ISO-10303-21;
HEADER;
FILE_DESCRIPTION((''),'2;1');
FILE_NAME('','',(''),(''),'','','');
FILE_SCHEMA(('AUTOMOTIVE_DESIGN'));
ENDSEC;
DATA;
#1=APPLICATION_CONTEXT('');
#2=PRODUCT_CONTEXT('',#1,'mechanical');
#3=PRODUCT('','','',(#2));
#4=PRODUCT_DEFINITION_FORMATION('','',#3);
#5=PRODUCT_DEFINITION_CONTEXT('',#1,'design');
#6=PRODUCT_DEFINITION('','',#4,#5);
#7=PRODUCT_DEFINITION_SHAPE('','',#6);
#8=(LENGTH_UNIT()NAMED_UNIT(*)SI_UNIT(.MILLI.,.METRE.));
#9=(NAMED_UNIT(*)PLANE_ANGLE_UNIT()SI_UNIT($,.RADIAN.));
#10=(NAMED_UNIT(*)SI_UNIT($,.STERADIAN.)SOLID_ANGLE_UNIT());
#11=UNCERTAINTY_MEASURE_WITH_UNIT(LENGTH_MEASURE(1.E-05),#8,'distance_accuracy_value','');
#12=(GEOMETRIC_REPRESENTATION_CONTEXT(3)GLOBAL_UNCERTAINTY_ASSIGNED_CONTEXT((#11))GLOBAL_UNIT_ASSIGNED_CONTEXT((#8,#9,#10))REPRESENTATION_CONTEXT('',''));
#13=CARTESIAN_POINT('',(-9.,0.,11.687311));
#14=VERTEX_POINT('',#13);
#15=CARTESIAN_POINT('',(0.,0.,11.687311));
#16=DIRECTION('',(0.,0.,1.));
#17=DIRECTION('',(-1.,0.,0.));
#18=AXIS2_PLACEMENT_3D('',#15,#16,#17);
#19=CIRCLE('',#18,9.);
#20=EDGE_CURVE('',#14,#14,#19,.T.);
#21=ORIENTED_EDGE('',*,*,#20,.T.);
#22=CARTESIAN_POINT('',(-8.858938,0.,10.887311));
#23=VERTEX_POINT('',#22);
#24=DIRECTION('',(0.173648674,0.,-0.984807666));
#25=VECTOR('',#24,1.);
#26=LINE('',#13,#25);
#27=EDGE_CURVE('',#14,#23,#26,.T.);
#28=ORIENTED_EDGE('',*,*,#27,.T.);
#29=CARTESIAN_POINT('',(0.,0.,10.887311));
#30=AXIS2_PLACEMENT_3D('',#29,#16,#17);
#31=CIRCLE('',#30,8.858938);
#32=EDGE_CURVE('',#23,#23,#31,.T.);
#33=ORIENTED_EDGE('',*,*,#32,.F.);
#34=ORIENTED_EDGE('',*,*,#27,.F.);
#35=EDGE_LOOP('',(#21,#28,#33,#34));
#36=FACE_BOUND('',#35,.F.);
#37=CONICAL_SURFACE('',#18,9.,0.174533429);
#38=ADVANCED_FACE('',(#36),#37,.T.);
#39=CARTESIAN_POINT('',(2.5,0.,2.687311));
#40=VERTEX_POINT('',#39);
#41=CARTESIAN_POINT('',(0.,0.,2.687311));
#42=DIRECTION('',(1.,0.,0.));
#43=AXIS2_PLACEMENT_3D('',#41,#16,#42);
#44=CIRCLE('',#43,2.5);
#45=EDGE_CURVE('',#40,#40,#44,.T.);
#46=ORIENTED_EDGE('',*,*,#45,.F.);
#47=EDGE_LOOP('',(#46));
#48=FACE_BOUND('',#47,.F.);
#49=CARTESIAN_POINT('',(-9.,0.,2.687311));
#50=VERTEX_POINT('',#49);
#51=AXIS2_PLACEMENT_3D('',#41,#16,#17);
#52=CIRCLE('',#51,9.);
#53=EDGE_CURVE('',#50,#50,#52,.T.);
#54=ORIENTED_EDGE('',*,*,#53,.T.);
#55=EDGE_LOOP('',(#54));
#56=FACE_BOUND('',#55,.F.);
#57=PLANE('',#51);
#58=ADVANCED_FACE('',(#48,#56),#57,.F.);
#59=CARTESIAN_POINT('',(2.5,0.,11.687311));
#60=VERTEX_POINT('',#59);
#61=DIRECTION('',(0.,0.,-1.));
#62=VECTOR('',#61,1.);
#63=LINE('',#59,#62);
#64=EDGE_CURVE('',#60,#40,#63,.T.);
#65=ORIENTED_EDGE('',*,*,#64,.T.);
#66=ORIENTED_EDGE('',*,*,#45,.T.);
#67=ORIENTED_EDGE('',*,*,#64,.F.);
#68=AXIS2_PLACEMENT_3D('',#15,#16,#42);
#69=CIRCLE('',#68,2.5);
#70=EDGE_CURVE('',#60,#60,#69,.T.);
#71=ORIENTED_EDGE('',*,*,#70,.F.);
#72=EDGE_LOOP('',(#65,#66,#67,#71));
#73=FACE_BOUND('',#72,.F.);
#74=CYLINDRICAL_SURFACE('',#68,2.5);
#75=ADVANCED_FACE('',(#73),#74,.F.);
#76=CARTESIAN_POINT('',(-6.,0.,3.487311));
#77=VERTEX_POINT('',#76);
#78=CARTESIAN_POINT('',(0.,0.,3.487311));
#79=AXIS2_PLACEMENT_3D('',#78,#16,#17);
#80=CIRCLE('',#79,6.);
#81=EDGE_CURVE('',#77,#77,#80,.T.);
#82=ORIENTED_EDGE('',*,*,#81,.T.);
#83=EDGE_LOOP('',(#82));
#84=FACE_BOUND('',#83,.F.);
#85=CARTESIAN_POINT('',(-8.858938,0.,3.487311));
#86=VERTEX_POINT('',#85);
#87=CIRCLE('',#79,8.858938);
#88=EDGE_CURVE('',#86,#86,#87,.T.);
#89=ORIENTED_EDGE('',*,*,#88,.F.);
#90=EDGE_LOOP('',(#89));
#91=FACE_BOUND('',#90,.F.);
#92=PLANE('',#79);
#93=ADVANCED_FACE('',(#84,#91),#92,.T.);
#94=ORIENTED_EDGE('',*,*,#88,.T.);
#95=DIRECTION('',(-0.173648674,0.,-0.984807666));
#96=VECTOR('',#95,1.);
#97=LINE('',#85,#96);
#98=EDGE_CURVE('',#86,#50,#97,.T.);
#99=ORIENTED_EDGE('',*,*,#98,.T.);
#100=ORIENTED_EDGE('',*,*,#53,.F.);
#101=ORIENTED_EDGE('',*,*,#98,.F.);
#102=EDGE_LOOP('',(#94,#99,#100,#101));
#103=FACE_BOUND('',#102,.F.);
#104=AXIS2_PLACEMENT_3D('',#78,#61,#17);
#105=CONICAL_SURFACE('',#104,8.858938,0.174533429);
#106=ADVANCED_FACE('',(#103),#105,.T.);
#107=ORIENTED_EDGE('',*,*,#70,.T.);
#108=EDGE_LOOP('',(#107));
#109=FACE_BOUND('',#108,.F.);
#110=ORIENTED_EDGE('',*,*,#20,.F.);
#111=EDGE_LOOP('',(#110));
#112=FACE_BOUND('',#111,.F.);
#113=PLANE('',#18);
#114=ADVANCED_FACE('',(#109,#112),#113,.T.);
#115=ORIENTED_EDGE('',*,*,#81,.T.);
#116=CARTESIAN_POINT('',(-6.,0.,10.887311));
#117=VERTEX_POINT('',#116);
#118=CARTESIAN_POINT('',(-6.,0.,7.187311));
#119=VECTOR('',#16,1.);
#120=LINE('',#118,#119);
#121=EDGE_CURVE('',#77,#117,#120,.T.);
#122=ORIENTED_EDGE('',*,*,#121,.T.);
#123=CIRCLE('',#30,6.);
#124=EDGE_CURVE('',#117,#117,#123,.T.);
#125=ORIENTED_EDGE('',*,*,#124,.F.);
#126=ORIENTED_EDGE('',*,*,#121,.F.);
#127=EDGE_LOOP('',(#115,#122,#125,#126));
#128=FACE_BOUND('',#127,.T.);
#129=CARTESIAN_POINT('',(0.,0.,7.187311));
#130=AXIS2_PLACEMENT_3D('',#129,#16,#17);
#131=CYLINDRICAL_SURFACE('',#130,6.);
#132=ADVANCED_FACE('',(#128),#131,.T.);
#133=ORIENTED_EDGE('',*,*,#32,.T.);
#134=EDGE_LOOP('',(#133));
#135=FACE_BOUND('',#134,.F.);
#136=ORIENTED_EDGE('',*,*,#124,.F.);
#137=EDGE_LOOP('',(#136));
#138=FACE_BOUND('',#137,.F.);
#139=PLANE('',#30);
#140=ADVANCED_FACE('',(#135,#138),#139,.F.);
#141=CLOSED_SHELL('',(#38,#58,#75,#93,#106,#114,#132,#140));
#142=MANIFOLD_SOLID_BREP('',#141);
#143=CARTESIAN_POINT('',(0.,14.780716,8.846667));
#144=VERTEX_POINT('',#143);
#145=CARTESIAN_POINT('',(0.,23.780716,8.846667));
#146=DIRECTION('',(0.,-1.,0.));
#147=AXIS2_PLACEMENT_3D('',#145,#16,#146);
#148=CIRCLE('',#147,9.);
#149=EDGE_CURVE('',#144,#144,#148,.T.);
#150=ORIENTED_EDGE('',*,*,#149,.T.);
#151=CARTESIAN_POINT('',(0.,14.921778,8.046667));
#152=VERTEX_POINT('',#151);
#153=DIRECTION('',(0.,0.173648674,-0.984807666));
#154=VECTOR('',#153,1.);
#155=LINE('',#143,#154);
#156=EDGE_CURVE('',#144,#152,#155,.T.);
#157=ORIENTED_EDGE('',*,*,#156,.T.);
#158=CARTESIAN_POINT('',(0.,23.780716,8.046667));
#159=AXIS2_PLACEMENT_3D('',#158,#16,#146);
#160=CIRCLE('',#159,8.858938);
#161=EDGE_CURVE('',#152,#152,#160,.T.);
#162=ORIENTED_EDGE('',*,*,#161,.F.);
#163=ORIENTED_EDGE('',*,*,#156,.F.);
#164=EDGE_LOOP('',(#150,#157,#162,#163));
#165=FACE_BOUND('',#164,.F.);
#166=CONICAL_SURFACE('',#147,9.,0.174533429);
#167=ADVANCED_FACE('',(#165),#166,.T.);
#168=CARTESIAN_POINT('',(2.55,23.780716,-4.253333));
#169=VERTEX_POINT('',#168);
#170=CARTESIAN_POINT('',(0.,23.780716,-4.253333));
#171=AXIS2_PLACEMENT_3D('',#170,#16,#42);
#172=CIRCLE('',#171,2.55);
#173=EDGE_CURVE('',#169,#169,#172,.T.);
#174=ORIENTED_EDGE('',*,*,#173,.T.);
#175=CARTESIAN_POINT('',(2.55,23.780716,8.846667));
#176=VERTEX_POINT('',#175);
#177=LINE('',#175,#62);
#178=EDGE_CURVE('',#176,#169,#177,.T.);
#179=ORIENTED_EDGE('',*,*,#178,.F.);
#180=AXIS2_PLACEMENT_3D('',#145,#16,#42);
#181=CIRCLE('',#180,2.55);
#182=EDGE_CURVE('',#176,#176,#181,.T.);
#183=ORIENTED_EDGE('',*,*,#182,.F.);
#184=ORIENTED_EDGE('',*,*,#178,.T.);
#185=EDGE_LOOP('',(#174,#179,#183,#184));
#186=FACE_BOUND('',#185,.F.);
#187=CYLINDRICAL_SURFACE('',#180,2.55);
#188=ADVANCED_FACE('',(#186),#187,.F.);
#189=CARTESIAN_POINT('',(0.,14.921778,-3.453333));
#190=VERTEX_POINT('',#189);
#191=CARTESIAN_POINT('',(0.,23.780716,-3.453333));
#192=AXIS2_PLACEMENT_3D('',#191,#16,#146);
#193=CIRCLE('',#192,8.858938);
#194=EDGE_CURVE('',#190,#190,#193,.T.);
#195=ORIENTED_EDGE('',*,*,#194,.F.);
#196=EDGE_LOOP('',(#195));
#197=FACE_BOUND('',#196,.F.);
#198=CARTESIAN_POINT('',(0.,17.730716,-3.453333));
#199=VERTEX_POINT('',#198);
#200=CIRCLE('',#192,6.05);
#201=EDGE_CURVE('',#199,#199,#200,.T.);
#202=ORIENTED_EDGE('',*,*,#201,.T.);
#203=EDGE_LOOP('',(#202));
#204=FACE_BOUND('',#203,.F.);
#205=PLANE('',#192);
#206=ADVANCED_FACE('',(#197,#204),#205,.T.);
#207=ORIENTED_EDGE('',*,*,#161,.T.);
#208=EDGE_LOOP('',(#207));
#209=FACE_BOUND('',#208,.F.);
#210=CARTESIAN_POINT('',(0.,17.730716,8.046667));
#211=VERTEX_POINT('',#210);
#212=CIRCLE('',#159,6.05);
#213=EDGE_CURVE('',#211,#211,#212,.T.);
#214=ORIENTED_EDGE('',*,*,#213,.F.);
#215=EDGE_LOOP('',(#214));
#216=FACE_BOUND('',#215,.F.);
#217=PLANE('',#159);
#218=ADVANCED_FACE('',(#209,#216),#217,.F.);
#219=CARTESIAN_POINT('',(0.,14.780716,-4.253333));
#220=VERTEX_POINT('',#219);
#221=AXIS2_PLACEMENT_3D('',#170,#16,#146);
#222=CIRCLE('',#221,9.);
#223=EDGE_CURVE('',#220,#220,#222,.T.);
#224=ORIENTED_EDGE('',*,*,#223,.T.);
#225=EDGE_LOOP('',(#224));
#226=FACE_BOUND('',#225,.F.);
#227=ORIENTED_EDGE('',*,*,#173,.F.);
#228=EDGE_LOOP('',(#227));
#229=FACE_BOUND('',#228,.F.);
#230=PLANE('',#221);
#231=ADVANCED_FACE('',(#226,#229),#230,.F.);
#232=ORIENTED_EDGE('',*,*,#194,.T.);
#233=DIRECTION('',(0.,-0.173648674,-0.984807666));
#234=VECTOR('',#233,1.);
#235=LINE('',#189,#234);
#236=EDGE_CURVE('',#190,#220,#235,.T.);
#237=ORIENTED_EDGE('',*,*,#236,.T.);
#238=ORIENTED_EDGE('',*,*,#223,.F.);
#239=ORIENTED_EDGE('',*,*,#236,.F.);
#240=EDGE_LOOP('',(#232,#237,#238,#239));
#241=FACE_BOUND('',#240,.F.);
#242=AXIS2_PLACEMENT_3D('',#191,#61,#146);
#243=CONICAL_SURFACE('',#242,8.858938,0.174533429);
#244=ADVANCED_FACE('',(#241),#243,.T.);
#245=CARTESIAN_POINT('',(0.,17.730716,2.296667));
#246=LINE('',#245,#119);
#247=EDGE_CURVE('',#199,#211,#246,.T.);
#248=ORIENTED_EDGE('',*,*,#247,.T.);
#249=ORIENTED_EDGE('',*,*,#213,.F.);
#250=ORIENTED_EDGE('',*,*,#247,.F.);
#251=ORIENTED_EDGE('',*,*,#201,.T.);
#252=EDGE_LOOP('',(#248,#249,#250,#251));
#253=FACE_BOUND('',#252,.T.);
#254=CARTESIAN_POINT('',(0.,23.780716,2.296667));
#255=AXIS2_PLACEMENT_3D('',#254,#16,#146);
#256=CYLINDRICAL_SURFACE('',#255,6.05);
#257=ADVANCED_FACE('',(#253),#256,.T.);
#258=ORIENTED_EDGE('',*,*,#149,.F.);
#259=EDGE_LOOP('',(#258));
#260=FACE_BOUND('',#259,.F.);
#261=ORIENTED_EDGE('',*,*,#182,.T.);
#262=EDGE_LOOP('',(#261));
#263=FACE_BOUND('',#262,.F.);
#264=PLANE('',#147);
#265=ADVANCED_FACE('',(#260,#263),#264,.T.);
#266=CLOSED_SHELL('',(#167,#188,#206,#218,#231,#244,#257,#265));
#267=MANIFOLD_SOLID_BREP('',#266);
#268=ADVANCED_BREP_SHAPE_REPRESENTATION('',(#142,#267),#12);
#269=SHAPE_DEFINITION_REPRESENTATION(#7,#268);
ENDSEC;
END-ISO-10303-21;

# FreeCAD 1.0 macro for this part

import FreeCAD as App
import Part
import Sketcher
Q = App.Units.Quantity

doc = App.newDocument("Part")
body = doc.addObject("PartDesign::Body", "Body")

# Sketch on XZ plane
sketch1 = doc.addObject("Sketcher::SketchObject", "Sketch")
body.addObject(sketch1)
sketch1.AttachmentSupport = (doc.XZ_Plane, [""])
sketch1.MapMode = "FlatFace"
sketch1.addGeometry(Part.LineSegment(App.Vector(0, 11.687311, 0), App.Vector(-9, 11.687311, 0)), False)
sketch1.addGeometry(Part.LineSegment(App.Vector(-9, 11.687311, 0), App.Vector(-8.858938, 10.887311, 0)), False)
sketch1.addGeometry(Part.LineSegment(App.Vector(-8.858938, 10.887311, 0), App.Vector(-6, 10.887311, 0)), False)
sketch1.addGeometry(Part.LineSegment(App.Vector(-6, 10.887311, 0), App.Vector(-6, 3.487311, 0)), False)
sketch1.addGeometry(Part.LineSegment(App.Vector(-6, 3.487311, 0), App.Vector(-8.858938, 3.487311, 0)), False)
sketch1.addGeometry(Part.LineSegment(App.Vector(-8.858938, 3.487311, 0), App.Vector(-9, 2.687311, 0)), False)
sketch1.addGeometry(Part.LineSegment(App.Vector(-9, 2.687311, 0), App.Vector(0, 2.687311, 0)), False)
sketch1.addGeometry(Part.LineSegment(App.Vector(0, 2.687311, 0), App.Vector(0, 11.687311, 0)), False)
sketch1.addConstraint(Sketcher.Constraint("Coincident", 0, 2, 1, 1))
sketch1.addConstraint(Sketcher.Constraint("Coincident", 1, 2, 2, 1))
sketch1.addConstraint(Sketcher.Constraint("Coincident", 2, 2, 3, 1))
sketch1.addConstraint(Sketcher.Constraint("Coincident", 3, 2, 4, 1))
sketch1.addConstraint(Sketcher.Constraint("Coincident", 4, 2, 5, 1))
sketch1.addConstraint(Sketcher.Constraint("Coincident", 5, 2, 6, 1))
sketch1.addConstraint(Sketcher.Constraint("Coincident", 6, 2, 7, 1))
sketch1.addConstraint(Sketcher.Constraint("Coincident", 7, 2, 0, 1))
sketch1.addConstraint(Sketcher.Constraint("Horizontal", 0))
sketch1.addConstraint(Sketcher.Constraint("Horizontal", 2))
sketch1.addConstraint(Sketcher.Constraint("Vertical", 3))
sketch1.addConstraint(Sketcher.Constraint("Horizontal", 4))
sketch1.addConstraint(Sketcher.Constraint("Horizontal", 6))
sketch1.addConstraint(Sketcher.Constraint("Vertical", 7))
sketch1.addConstraint(Sketcher.Constraint("PointOnObject", 6, 2, -2))
sketch1.addConstraint(Sketcher.Constraint("Vertical", 1, 2, 4, 2))
sketch1.addConstraint(Sketcher.Constraint("Vertical", 0, 2, 5, 2))
sketch1.addConstraint(Sketcher.Constraint("Equal", 6, 7))
sketch1.addConstraint(Sketcher.Constraint("Equal", 1, 5))
sketch1.addConstraint(Sketcher.Constraint("DistanceX", 0, 2, 0, 1, Q("9 mm")))
sketch1.addConstraint(Sketcher.Constraint("DistanceY", 3, 2, 3, 1, Q("7.4 mm")))
sketch1.addConstraint(Sketcher.Constraint("DistanceX", 2, 2, -1, 1, Q("6 mm")))
sketch1.addConstraint(Sketcher.Constraint("DistanceX", 2, 1, 2, 2, Q("2.858938 mm")))
sketch1.addConstraint(Sketcher.Constraint("DistanceY", -1, 1, 0, 2, Q("11.687311 mm")))
revolution = doc.addObject("PartDesign::Revolution", "Revolution")
body.addObject(revolution)
revolution.Profile = sketch1
revolution.ReferenceAxis = (sketch1, ["V_Axis"])
revolution.Angle = 360

# Sketch on XY plane
sketch2 = doc.addObject("Sketcher::SketchObject", "Sketch001")
body.addObject(sketch2)
sketch2.AttachmentSupport = (doc.XY_Plane, [""])
sketch2.MapMode = "FlatFace"
sketch2.AttachmentOffset = App.Placement(App.Vector(0, 0, 11.687311), App.Rotation())
sketch2.addGeometry(Part.Circle(App.Vector(0, 0, 0), App.Vector(0, 0, 1), 2.5), False)
sketch2.addConstraint(Sketcher.Constraint("Coincident", 0, 3, -1, 1))
sketch2.addConstraint(Sketcher.Constraint("Diameter", 0, Q("5 mm")))
pocket1 = doc.addObject("PartDesign::Pocket", "Pocket")
body.addObject(pocket1)
pocket1.Profile = sketch2
pocket1.Type = "ThroughAll"
body2 = doc.addObject("PartDesign::Body", "Body001")

# Sketch on YZ plane
sketch3 = doc.addObject("Sketcher::SketchObject", "Sketch002")
body2.addObject(sketch3)
sketch3.AttachmentSupport = (doc.getObject("YZ_Plane001"), [""])
sketch3.MapMode = "FlatFace"
sketch3.addGeometry(Part.LineSegment(App.Vector(23.780716, -4.253333, 0), App.Vector(23.780716, 8.846667, 0)), False)
sketch3.addGeometry(Part.LineSegment(App.Vector(23.780716, 8.846667, 0), App.Vector(14.780716, 8.846667, 0)), False)
sketch3.addGeometry(Part.LineSegment(App.Vector(14.780716, 8.846667, 0), App.Vector(14.921778, 8.046667, 0)), False)
sketch3.addGeometry(Part.LineSegment(App.Vector(14.921778, 8.046667, 0), App.Vector(17.730716, 8.046667, 0)), False)
sketch3.addGeometry(Part.LineSegment(App.Vector(17.730716, 8.046667, 0), App.Vector(17.730716, -3.453333, 0)), False)
sketch3.addGeometry(Part.LineSegment(App.Vector(17.730716, -3.453333, 0), App.Vector(14.921778, -3.453333, 0)), False)
sketch3.addGeometry(Part.LineSegment(App.Vector(14.921778, -3.453333, 0), App.Vector(14.780716, -4.253333, 0)), False)
sketch3.addGeometry(Part.LineSegment(App.Vector(14.780716, -4.253333, 0), App.Vector(23.780716, -4.253333, 0)), False)
sketch3.addGeometry(Part.LineSegment(App.Vector(23.780716, -4.253333, 0), App.Vector(23.780716, 8.846667, 0)), True)  # axis
sketch3.addConstraint(Sketcher.Constraint("Coincident", 0, 2, 1, 1))
sketch3.addConstraint(Sketcher.Constraint("Coincident", 1, 2, 2, 1))
sketch3.addConstraint(Sketcher.Constraint("Coincident", 2, 2, 3, 1))
sketch3.addConstraint(Sketcher.Constraint("Coincident", 3, 2, 4, 1))
sketch3.addConstraint(Sketcher.Constraint("Coincident", 4, 2, 5, 1))
sketch3.addConstraint(Sketcher.Constraint("Coincident", 5, 2, 6, 1))
sketch3.addConstraint(Sketcher.Constraint("Coincident", 6, 2, 7, 1))
sketch3.addConstraint(Sketcher.Constraint("Coincident", 7, 2, 0, 1))
sketch3.addConstraint(Sketcher.Constraint("Vertical", 0))
sketch3.addConstraint(Sketcher.Constraint("Horizontal", 1))
sketch3.addConstraint(Sketcher.Constraint("Horizontal", 3))
sketch3.addConstraint(Sketcher.Constraint("Vertical", 4))
sketch3.addConstraint(Sketcher.Constraint("Horizontal", 5))
sketch3.addConstraint(Sketcher.Constraint("Horizontal", 7))
sketch3.addConstraint(Sketcher.Constraint("Vertical", 8))
sketch3.addConstraint(Sketcher.Constraint("Coincident", 8, 1, 7, 2))
sketch3.addConstraint(Sketcher.Constraint("Horizontal", 1, 2, 8, 2))
sketch3.addConstraint(Sketcher.Constraint("Vertical", 2, 2, 5, 2))
sketch3.addConstraint(Sketcher.Constraint("Vertical", 1, 2, 6, 2))
sketch3.addConstraint(Sketcher.Constraint("Equal", 2, 6))
sketch3.addConstraint(Sketcher.Constraint("DistanceX", 1, 2, 1, 1, Q("9 mm")))
sketch3.addConstraint(Sketcher.Constraint("DistanceY", 0, 1, 0, 2, Q("13.1 mm")))
sketch3.addConstraint(Sketcher.Constraint("DistanceY", 4, 2, 4, 1, Q("11.5 mm")))
sketch3.addConstraint(Sketcher.Constraint("DistanceX", 1, 2, 3, 2, Q("2.95 mm")))
sketch3.addConstraint(Sketcher.Constraint("DistanceX", 3, 1, 3, 2, Q("2.808938 mm")))
sketch3.addConstraint(Sketcher.Constraint("DistanceX", -1, 1, 0, 2, Q("23.780716 mm")))
sketch3.addConstraint(Sketcher.Constraint("DistanceY", -1, 1, 0, 2, Q("8.846667 mm")))
revolution2 = doc.addObject("PartDesign::Revolution", "Revolution001")
body2.addObject(revolution2)
revolution2.Profile = sketch3
revolution2.ReferenceAxis = (sketch3, ["Axis0"])
revolution2.Angle = 360

# Sketch on XY plane
sketch4 = doc.addObject("Sketcher::SketchObject", "Sketch003")
body2.addObject(sketch4)
sketch4.AttachmentSupport = (doc.getObject("XY_Plane001"), [""])
sketch4.MapMode = "FlatFace"
sketch4.AttachmentOffset = App.Placement(App.Vector(0, 0, 8.846667), App.Rotation())
sketch4.addGeometry(Part.Circle(App.Vector(0, 23.780716, 0), App.Vector(0, 0, 1), 2.55), False)
sketch4.addConstraint(Sketcher.Constraint("PointOnObject", 0, 3, -2))
sketch4.addConstraint(Sketcher.Constraint("Diameter", 0, Q("5.1 mm")))
sketch4.addConstraint(Sketcher.Constraint("DistanceY", -1, 1, 0, 3, Q("23.780716 mm")))
pocket2 = doc.addObject("PartDesign::Pocket", "Pocket001")
body2.addObject(pocket2)
pocket2.Profile = sketch4
pocket2.Type = "ThroughAll"

doc.recompute()
